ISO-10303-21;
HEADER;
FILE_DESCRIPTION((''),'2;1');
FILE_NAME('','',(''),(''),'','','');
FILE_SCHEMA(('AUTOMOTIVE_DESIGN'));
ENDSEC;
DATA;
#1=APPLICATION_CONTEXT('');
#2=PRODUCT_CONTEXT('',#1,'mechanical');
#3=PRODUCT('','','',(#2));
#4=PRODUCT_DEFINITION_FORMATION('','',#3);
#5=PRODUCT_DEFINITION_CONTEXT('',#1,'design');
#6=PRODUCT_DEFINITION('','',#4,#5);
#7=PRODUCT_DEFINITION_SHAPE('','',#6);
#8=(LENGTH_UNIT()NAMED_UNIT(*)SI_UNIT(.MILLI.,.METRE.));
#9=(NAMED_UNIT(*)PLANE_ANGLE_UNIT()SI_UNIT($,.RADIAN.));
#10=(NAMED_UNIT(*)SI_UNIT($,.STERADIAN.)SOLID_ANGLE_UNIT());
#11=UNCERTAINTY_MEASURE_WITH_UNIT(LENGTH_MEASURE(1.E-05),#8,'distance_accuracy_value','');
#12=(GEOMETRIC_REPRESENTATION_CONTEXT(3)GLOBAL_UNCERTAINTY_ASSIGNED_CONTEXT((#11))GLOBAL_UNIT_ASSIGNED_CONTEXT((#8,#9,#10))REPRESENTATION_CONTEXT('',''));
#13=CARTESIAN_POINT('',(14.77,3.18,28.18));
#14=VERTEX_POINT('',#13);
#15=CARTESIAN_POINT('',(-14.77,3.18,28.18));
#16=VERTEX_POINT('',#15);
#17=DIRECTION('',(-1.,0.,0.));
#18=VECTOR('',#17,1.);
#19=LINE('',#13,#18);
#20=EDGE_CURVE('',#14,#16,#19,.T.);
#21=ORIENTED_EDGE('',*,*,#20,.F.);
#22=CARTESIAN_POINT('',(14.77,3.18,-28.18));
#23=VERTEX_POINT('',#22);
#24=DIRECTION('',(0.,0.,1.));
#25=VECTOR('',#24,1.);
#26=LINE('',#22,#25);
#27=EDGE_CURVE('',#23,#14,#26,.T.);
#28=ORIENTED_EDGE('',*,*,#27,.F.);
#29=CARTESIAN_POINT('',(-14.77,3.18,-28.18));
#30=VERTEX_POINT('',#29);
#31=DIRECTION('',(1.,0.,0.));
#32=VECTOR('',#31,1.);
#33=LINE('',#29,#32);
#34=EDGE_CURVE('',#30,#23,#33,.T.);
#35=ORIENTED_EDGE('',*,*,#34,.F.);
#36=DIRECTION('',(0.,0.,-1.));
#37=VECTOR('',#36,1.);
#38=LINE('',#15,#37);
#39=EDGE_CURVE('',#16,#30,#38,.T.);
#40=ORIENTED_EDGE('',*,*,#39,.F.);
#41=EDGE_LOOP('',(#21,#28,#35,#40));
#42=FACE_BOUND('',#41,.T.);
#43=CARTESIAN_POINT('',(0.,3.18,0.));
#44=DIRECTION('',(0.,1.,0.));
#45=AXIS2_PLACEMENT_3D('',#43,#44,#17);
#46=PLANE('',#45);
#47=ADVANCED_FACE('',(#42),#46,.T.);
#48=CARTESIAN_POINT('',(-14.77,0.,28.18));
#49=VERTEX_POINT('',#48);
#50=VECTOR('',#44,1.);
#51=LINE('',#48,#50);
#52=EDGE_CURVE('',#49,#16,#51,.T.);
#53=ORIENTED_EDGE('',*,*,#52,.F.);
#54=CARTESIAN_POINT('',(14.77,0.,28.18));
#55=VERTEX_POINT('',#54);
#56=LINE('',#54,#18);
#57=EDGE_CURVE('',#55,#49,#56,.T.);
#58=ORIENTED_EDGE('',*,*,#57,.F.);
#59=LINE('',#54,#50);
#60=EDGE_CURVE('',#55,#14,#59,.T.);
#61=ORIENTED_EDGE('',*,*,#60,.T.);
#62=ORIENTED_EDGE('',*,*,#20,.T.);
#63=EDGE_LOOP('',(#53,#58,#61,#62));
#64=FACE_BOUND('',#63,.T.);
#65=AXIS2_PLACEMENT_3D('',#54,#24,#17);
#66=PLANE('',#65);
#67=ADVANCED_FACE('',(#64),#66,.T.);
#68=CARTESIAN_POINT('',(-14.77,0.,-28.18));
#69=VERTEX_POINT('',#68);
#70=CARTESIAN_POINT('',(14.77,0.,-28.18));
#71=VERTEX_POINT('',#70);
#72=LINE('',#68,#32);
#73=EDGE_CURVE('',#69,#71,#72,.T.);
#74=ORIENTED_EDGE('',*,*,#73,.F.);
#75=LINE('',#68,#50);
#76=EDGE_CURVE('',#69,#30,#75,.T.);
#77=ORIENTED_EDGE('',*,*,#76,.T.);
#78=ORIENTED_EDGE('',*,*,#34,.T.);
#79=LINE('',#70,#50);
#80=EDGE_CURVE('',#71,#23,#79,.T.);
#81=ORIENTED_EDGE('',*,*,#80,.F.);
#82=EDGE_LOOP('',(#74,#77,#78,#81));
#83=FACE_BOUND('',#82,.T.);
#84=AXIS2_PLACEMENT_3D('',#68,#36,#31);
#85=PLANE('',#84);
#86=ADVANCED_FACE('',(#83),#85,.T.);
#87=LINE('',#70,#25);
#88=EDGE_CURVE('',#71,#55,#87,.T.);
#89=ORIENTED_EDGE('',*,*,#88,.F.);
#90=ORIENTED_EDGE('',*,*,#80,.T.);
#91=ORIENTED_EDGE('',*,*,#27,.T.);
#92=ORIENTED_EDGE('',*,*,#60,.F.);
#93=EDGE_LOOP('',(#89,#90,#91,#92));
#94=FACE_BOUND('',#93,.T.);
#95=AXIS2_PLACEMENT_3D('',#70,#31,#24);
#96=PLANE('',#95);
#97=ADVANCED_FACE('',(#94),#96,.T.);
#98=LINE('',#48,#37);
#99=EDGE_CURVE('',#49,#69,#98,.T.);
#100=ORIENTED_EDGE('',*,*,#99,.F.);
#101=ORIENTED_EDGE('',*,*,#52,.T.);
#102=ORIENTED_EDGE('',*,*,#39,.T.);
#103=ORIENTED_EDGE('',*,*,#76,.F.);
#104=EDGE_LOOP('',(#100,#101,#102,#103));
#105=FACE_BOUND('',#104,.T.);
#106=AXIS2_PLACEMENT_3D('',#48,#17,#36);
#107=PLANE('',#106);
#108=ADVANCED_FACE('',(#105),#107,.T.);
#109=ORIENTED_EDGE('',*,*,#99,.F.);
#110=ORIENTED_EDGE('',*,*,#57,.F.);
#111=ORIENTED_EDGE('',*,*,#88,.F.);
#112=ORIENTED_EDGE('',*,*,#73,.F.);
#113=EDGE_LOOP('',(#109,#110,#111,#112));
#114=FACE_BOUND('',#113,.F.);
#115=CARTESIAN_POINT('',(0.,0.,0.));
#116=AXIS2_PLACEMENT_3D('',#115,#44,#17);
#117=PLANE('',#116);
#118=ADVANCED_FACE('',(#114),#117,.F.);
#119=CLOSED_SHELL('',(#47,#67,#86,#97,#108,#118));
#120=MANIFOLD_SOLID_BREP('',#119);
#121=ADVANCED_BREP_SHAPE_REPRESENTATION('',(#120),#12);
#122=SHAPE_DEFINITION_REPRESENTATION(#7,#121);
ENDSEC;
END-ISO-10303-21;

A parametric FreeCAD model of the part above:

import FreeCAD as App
import Part
import Sketcher
Q = App.Units.Quantity

doc = App.newDocument("Part")
body = doc.addObject("PartDesign::Body", "Body")

# Sketch on XZ plane
sketch1 = doc.addObject("Sketcher::SketchObject", "Sketch")
body.addObject(sketch1)
sketch1.AttachmentSupport = (doc.XZ_Plane, [""])
sketch1.MapMode = "FlatFace"
sketch1.addGeometry(Part.LineSegment(App.Vector(-14.77, 28.18, 0), App.Vector(14.77, 28.18, 0)), False)
sketch1.addGeometry(Part.LineSegment(App.Vector(14.77, 28.18, 0), App.Vector(14.77, -28.18, 0)), False)
sketch1.addGeometry(Part.LineSegment(App.Vector(14.77, -28.18, 0), App.Vector(-14.77, -28.18, 0)), False)
sketch1.addGeometry(Part.LineSegment(App.Vector(-14.77, -28.18, 0), App.Vector(-14.77, 28.18, 0)), False)
sketch1.addConstraint(Sketcher.Constraint("Coincident", 0, 2, 1, 1))
sketch1.addConstraint(Sketcher.Constraint("Coincident", 1, 2, 2, 1))
sketch1.addConstraint(Sketcher.Constraint("Coincident", 2, 2, 3, 1))
sketch1.addConstraint(Sketcher.Constraint("Coincident", 3, 2, 0, 1))
sketch1.addConstraint(Sketcher.Constraint("Horizontal", 0))
sketch1.addConstraint(Sketcher.Constraint("Vertical", 1))
sketch1.addConstraint(Sketcher.Constraint("Horizontal", 2))
sketch1.addConstraint(Sketcher.Constraint("Vertical", 3))
sketch1.addConstraint(Sketcher.Constraint("Symmetric", 0, 2, 2, 2, -1, 1))
sketch1.addConstraint(Sketcher.Constraint("DistanceX", 0, 1, 0, 2, Q("1.163 in")))
sketch1.addConstraint(Sketcher.Constraint("DistanceY", 1, 2, 1, 1, Q("2.2189 in")))
pad1 = doc.addObject("PartDesign::Pad", "Pad")
body.addObject(pad1)
pad1.Profile = sketch1
pad1.Length = Q("0.1251969 in")
pad1.Reversed = True

doc.recompute()
